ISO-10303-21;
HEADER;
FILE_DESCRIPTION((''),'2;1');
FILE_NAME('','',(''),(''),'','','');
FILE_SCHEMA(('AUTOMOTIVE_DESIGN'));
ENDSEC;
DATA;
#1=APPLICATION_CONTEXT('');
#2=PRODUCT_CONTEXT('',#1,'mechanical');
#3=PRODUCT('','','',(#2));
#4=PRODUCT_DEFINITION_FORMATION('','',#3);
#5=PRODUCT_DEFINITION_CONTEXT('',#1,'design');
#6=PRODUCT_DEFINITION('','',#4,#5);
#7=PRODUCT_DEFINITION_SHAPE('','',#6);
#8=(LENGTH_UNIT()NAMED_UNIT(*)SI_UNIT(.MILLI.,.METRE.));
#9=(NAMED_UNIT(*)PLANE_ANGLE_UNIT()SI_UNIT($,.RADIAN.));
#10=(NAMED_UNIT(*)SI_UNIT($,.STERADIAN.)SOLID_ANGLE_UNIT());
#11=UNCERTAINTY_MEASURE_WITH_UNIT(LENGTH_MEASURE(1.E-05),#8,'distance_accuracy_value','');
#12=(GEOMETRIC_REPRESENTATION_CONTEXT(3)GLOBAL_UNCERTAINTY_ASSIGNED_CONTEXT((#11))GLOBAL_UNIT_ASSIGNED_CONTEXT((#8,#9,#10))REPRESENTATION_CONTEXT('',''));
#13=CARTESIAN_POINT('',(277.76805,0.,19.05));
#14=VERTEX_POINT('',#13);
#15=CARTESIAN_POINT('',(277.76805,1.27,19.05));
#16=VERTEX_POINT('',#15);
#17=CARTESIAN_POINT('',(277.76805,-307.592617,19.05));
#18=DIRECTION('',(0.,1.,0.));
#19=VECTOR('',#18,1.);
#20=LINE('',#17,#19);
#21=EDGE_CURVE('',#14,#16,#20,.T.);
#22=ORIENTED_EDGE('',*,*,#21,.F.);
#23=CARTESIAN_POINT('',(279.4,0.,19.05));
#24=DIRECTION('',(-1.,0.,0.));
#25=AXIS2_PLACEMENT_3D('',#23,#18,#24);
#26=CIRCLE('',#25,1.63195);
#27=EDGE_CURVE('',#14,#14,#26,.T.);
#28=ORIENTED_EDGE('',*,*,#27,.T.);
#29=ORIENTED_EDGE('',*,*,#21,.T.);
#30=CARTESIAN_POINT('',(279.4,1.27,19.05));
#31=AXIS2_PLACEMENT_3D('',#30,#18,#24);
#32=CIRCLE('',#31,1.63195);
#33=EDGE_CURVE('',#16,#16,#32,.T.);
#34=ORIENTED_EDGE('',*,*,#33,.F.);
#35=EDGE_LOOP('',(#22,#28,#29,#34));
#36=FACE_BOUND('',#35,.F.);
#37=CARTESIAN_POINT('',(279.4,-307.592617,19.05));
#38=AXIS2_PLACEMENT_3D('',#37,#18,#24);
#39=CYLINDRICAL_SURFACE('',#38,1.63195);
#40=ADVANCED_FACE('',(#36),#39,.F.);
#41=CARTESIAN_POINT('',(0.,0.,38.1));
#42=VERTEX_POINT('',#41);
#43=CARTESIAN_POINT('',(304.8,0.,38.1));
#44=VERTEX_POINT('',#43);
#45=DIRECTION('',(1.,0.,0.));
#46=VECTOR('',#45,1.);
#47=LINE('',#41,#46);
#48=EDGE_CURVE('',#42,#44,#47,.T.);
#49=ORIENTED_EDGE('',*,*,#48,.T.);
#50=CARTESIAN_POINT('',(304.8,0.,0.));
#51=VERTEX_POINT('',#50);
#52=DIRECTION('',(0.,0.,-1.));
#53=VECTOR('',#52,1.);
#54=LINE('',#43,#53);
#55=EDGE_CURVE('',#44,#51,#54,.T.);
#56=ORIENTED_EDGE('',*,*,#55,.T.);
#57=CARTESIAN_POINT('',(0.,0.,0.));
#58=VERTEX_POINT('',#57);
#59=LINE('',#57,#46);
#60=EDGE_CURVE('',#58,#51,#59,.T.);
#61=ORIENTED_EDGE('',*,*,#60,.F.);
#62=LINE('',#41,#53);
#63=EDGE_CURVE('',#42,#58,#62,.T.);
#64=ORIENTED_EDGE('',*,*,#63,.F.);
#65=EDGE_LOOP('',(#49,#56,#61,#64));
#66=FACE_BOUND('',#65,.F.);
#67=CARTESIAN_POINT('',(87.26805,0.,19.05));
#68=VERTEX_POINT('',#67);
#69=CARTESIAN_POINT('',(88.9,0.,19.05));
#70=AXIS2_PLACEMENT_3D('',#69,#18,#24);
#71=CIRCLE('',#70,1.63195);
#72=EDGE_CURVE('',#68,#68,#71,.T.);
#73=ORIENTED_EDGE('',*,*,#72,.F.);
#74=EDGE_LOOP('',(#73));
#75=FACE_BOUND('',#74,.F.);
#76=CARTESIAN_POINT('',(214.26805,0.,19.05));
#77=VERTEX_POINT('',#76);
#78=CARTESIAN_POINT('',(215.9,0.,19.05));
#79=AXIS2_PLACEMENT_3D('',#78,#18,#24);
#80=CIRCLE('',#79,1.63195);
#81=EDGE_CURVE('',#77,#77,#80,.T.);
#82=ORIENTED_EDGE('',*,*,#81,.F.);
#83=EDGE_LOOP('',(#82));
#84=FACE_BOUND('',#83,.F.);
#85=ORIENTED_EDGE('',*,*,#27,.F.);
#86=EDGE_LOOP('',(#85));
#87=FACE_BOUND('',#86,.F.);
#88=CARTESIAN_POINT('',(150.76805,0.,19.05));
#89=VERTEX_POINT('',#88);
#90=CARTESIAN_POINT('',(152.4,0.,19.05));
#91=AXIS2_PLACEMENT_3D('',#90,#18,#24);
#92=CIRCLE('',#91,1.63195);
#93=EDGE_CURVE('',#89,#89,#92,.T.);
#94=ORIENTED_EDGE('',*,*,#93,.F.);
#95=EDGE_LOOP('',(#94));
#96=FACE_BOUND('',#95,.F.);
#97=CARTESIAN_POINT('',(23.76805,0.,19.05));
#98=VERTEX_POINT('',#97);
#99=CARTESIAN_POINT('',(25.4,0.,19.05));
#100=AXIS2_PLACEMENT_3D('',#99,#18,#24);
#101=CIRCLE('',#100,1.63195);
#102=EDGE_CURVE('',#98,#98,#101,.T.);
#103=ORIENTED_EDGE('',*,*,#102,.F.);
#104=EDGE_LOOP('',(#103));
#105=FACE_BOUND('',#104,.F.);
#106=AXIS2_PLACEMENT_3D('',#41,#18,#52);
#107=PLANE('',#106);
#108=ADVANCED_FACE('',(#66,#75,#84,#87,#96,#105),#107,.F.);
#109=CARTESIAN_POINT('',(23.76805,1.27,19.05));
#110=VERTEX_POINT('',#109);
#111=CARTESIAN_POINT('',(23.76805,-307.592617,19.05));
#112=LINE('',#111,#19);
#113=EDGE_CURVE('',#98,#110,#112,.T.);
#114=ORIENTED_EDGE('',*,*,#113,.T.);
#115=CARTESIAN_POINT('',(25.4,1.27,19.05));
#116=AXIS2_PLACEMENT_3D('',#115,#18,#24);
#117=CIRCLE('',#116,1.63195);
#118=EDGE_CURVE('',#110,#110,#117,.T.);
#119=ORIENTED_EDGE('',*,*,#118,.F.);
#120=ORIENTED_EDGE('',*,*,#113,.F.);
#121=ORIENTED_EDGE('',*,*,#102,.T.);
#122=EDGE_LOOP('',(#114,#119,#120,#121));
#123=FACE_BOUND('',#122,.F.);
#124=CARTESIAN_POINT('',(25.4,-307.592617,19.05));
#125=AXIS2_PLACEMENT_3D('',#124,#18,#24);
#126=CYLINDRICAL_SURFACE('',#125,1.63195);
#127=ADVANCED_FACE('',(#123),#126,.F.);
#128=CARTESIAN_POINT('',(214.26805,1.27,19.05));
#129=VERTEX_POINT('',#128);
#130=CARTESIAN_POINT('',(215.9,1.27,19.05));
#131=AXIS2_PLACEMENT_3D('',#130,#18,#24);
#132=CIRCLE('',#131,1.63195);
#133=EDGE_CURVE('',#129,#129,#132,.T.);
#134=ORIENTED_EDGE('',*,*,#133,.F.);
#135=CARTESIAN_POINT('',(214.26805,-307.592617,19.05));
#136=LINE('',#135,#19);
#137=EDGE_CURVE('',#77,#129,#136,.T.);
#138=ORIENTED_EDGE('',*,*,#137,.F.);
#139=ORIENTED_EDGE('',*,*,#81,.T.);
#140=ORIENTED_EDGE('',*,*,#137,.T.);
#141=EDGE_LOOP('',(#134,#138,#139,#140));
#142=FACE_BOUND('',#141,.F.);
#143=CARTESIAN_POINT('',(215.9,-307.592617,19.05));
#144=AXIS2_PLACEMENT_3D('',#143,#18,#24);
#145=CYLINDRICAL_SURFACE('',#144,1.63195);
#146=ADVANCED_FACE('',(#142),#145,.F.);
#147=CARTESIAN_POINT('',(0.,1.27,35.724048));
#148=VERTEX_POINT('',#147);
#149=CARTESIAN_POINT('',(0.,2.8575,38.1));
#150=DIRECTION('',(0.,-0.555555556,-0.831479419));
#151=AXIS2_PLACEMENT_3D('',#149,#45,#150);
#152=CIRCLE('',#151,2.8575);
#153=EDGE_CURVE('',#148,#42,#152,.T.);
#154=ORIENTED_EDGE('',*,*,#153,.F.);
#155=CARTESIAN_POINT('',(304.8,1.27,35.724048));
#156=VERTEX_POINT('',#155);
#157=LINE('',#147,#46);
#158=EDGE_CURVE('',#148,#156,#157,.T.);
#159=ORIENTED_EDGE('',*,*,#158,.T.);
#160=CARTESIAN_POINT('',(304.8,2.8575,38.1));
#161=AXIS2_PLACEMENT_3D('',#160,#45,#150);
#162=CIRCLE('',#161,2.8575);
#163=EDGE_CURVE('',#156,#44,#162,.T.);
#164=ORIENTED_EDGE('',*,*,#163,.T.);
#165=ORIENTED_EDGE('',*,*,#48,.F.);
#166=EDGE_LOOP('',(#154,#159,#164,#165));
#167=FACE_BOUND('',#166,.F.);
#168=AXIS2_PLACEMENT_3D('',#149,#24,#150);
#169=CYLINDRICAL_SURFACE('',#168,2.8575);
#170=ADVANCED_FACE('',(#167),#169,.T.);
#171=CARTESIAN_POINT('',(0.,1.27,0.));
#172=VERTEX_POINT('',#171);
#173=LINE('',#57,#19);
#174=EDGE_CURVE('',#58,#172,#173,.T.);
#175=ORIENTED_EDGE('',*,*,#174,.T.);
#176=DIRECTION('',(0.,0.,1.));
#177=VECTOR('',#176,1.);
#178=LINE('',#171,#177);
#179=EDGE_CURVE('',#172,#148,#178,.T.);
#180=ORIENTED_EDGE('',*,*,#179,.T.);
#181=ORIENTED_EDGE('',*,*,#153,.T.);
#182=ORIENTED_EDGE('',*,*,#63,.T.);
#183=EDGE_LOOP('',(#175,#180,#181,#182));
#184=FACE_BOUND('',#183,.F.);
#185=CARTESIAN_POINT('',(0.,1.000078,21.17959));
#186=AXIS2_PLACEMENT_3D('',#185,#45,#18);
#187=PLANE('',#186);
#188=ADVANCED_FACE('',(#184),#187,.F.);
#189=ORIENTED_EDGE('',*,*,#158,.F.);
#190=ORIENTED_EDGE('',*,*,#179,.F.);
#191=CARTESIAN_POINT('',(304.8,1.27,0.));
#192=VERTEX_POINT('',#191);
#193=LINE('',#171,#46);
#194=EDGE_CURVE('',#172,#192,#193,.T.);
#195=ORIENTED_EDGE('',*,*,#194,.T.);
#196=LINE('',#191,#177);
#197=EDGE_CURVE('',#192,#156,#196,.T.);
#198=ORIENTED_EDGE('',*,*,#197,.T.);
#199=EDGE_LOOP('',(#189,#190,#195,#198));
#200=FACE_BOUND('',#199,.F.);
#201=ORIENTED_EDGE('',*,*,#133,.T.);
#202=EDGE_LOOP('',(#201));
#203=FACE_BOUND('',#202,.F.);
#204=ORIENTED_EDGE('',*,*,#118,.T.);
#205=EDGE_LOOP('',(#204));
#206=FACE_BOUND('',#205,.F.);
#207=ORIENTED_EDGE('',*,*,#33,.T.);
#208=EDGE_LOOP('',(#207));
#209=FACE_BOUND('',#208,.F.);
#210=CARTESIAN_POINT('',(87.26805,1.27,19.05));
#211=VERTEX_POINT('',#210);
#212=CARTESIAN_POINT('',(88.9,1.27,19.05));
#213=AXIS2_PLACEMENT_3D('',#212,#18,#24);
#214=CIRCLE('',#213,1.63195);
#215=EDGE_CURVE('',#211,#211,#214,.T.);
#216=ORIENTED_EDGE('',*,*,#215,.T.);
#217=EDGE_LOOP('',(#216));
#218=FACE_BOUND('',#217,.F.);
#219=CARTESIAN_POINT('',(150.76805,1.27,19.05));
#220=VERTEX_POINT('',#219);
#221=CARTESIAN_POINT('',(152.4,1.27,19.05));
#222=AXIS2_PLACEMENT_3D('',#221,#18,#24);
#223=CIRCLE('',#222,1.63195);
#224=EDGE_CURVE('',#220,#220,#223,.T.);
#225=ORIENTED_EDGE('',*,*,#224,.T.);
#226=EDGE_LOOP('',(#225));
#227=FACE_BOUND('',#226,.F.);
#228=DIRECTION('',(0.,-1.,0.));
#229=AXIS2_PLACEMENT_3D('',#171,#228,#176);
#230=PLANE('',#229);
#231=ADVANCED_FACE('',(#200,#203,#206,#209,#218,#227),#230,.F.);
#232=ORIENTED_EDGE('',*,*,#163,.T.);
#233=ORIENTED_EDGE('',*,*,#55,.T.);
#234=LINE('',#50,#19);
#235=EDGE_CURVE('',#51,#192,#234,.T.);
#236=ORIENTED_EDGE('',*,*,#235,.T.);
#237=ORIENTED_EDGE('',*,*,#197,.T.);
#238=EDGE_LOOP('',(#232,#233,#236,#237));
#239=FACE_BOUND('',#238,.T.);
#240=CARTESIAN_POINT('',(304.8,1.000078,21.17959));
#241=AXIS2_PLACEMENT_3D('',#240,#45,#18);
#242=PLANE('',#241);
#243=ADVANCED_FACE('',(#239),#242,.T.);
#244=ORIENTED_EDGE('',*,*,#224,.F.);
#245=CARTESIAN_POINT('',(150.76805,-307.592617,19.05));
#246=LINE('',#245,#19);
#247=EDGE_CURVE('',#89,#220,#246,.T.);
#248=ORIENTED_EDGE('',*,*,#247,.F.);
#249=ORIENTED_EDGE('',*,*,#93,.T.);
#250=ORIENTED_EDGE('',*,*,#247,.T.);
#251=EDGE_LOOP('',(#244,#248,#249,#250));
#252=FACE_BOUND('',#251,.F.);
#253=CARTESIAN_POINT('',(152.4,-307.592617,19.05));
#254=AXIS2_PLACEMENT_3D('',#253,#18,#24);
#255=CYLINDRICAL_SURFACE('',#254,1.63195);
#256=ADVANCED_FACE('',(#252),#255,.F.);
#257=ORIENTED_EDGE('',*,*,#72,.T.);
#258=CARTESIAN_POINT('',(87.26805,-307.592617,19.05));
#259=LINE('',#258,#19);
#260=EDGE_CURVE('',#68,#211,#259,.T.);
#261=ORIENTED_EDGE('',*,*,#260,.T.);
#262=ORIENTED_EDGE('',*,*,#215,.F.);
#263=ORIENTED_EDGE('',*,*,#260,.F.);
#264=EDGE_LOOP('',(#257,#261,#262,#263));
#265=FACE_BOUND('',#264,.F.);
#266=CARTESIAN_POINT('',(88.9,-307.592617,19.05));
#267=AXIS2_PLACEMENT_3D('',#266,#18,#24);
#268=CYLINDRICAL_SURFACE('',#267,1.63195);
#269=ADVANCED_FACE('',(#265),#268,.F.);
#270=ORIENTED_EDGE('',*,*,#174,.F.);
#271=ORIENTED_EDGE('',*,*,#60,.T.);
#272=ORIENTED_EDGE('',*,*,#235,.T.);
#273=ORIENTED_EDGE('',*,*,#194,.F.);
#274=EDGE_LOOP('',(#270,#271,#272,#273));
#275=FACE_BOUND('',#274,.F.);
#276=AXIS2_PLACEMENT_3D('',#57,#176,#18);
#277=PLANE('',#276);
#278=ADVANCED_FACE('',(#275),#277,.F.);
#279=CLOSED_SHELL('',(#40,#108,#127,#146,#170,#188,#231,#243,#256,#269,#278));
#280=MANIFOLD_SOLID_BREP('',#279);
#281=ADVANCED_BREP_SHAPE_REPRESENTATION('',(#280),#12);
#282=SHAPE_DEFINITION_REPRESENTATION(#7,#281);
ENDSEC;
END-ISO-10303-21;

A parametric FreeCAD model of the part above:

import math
import FreeCAD as App
import Part
import Sketcher
from FreeCAD import Vector
Q = App.Units.Quantity

doc = App.newDocument("Part")
body = doc.addObject("PartDesign::Body", "Body")

sketch1 = body.newObject("Sketcher::SketchObject", "Sketch")
sketch1.AttachmentSupport = (doc.getObject("YZ_Plane"), [""])
sketch1.MapMode = "FlatFace"
sketch1.addGeometry(Part.LineSegment(Vector(0, 38.1, 0), Vector(0, 0, 0)), False)
sketch1.addGeometry(Part.LineSegment(Vector(0, 0, 0), Vector(1.3, 0, 0)), False)
sketch1.addGeometry(Part.LineSegment(Vector(1.3, 0, 0), Vector(1.3, 35.7, 0)), False)
sketch1.addGeometry(Part.ArcOfCircle(Part.Circle(Vector(2.9, 38.1, 0), Vector(0, 0, 1), 2.9), math.radians(-124), math.radians(180)), False)
sketch1.addConstraint(Sketcher.Constraint("Coincident", 0, 2, 1, 1))
sketch1.addConstraint(Sketcher.Constraint("Coincident", 1, 2, 2, 1))
sketch1.addConstraint(Sketcher.Constraint("Coincident", 2, 2, 3, 1))
sketch1.addConstraint(Sketcher.Constraint("Tangent", 3, 2, 0, 1))
sketch1.addConstraint(Sketcher.Constraint("Vertical", 0))
sketch1.addConstraint(Sketcher.Constraint("Horizontal", 1))
sketch1.addConstraint(Sketcher.Constraint("Vertical", 2))
sketch1.addConstraint(Sketcher.Constraint("Coincident", 0, 2, -1, 1))
sketch1.addConstraint(Sketcher.Constraint("DistanceY", 0, 2, 0, 1, Q("1.5 in")))
sketch1.addConstraint(Sketcher.Constraint("DistanceX", 1, 1, 1, 2, Q("0.05 in")))
sketch1.addConstraint(Sketcher.Constraint("Radius", 3, Q("0.1125 in")))
pad1 = body.newObject("PartDesign::Pad", "Pad")
pad1.Profile = sketch1
pad1.Length = Q("12 in")

sketch2 = body.newObject("Sketcher::SketchObject", "Sketch001")
sketch2.AttachmentSupport = (doc.getObject("XZ_Plane"), [""])
sketch2.MapMode = "FlatFace"
sketch2.addGeometry(Part.Circle(Vector(25.4, 19.1, 0), Vector(0, 0, 1), 1.6), False)
sketch2.addGeometry(Part.Circle(Vector(88.9, 19.1, 0), Vector(0, 0, 1), 1.6), False)
sketch2.addGeometry(Part.Circle(Vector(152.4, 19.1, 0), Vector(0, 0, 1), 1.6), False)
sketch2.addGeometry(Part.Circle(Vector(215.9, 19.1, 0), Vector(0, 0, 1), 1.6), False)
sketch2.addGeometry(Part.Circle(Vector(279.4, 19.1, 0), Vector(0, 0, 1), 1.6), False)
sketch2.addConstraint(Sketcher.Constraint("Equal", 0, 1))
sketch2.addConstraint(Sketcher.Constraint("Equal", 1, 2))
sketch2.addConstraint(Sketcher.Constraint("Equal", 2, 3))
sketch2.addConstraint(Sketcher.Constraint("Equal", 3, 4))
sketch2.addConstraint(Sketcher.Constraint("Horizontal", 0, 3, 1, 3))
sketch2.addConstraint(Sketcher.Constraint("Horizontal", 1, 3, 2, 3))
sketch2.addConstraint(Sketcher.Constraint("Horizontal", 2, 3, 3, 3))
sketch2.addConstraint(Sketcher.Constraint("Horizontal", 3, 3, 4, 3))
sketch2.addConstraint(Sketcher.Constraint("DistanceX", -1, 1, 0, 3, Q("1 in")))
sketch2.addConstraint(Sketcher.Constraint("DistanceX", -1, 1, 2, 3, Q("6 in")))
sketch2.addConstraint(Sketcher.Constraint("DistanceX", -1, 1, 4, 3, Q("11 in")))
sketch2.addConstraint(Sketcher.Constraint("DistanceX", 1, 3, 3, 3, Q("5 in")))
sketch2.addConstraint(Sketcher.Constraint("Diameter", 0, Q("0.1285 in")))
sketch2.addConstraint(Sketcher.Constraint("DistanceX", -1, 1, 1, 3, Q("3.5 in")))
sketch2.addConstraint(Sketcher.Constraint("DistanceY", -1, 1, 0, 3, Q("0.75 in")))
doc.recompute()
hole = body.newObject("PartDesign::Hole", "Hole")
hole.Profile = sketch2
hole.ThreadType = "None"
hole.Diameter = Q("0.1285 in")
hole.DepthType = "ThroughAll"

doc.recompute()
